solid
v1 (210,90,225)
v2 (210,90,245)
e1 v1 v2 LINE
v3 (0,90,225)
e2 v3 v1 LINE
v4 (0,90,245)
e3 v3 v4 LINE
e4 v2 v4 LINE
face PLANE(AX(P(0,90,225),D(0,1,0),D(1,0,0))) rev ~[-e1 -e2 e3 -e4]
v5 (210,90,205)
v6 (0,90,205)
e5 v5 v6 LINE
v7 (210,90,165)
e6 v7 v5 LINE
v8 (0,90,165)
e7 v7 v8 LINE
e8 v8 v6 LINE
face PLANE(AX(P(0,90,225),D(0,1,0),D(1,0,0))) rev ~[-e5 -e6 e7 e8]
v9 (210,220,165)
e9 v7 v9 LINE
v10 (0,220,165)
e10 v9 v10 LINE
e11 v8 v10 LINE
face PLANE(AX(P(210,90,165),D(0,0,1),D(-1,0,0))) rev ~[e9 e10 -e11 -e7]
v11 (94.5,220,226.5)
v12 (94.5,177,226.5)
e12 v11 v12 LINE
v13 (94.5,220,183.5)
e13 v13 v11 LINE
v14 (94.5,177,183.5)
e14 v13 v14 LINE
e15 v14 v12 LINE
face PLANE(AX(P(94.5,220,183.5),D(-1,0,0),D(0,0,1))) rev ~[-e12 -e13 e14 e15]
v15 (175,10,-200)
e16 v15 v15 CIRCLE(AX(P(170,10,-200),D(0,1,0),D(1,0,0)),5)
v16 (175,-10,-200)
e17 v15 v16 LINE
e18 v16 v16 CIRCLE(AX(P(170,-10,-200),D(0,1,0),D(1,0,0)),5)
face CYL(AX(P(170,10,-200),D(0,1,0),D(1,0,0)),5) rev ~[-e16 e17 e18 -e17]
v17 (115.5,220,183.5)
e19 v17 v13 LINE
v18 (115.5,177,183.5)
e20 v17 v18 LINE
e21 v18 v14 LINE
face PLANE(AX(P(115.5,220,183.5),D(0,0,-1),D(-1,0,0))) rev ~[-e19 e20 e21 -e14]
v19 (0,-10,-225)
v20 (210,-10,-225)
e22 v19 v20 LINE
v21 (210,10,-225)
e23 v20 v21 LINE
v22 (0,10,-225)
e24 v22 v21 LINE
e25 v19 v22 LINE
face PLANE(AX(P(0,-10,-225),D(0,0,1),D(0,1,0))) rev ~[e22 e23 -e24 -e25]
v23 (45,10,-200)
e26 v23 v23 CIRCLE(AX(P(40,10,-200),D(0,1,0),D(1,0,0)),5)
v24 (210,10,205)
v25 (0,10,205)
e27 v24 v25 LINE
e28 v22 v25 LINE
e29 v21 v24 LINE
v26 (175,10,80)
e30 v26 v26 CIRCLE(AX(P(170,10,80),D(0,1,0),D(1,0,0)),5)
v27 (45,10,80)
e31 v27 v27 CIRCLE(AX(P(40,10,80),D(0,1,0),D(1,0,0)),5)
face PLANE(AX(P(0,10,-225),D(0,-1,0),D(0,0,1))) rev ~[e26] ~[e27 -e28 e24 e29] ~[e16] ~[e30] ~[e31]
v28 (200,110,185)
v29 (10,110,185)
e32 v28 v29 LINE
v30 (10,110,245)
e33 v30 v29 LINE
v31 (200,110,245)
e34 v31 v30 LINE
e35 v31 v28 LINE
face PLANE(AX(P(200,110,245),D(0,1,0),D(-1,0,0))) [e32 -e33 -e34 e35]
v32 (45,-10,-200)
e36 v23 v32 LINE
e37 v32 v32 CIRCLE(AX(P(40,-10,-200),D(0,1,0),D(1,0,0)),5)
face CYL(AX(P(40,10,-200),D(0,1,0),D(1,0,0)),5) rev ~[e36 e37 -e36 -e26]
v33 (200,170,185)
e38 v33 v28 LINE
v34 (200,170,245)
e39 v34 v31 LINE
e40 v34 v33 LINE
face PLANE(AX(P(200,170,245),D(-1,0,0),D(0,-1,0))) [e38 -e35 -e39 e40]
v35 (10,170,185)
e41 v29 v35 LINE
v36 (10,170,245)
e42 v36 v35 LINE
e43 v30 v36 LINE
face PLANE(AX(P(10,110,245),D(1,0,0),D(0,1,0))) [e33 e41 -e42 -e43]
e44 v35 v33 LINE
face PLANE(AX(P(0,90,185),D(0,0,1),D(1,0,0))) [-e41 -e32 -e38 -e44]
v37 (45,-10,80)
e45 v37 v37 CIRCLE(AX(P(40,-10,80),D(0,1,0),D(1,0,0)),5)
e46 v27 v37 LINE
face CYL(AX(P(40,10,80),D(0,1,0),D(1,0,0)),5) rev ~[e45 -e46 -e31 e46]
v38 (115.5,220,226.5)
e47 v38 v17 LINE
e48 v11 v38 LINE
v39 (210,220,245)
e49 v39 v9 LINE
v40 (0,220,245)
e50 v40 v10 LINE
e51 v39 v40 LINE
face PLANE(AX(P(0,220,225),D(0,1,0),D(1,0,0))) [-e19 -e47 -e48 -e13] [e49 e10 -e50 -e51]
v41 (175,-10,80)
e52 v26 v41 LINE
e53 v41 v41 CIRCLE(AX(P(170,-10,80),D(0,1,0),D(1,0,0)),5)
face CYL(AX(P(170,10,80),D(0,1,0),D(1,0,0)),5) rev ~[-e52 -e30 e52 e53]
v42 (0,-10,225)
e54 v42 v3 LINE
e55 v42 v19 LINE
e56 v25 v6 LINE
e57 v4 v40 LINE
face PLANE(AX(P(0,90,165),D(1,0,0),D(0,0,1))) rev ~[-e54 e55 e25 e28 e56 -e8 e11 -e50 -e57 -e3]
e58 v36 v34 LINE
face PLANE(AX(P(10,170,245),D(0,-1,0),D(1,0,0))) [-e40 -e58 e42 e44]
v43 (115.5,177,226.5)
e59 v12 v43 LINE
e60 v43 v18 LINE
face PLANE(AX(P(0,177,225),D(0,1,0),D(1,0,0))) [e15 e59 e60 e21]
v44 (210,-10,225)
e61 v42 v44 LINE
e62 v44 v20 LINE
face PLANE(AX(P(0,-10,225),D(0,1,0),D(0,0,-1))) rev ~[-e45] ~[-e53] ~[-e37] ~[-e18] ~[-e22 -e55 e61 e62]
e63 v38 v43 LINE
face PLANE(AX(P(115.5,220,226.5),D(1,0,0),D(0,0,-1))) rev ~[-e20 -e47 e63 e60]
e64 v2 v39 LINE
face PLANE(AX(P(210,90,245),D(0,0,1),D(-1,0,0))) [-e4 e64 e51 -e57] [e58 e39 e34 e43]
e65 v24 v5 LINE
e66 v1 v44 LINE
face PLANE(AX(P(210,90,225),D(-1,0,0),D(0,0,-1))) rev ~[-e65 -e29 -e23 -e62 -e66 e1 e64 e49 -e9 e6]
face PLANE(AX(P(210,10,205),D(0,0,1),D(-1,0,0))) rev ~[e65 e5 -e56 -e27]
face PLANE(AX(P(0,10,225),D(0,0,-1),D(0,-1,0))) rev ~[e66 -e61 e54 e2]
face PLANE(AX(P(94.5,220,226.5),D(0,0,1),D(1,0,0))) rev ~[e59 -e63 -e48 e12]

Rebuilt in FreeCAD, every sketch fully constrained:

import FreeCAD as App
import Part
import Sketcher


def add_polygon(sketch, points):
    """Adds a closed chain of lines whose ends are joined by coincident constraints."""
    first, n = sketch.GeometryCount, len(points)
    for a, b in zip(points, points[1:] + points[:1]):
        sketch.addGeometry(Part.LineSegment(App.Vector(*a, 0), App.Vector(*b, 0)), False)
    for i in range(n):
        sketch.addConstraint(Sketcher.Constraint("Coincident", first + i, 2, first + (i + 1) % n, 1))

doc = App.newDocument("Part")
params = doc.addObject("Spreadsheet::Sheet", "Params")
for row, (alias, value) in enumerate([
    ("sketch1_width", "20 mm"),
    ("sketch1_height", "450 mm"),
    ("pad1_length", "210 mm"),
    ("sketch2_height", "20 mm"),
    ("sketch2_width", "210 mm"),
    ("pad2_length", "80 mm"),
    ("sketch3_width", "210 mm"),
    ("sketch3_height", "80 mm"),
    ("pad3_length", "130 mm"),
    ("sketch4_width", "190 mm"),
    ("sketch4_height", "60 mm"),
    ("pocket1_length", "60 mm"),
    ("sketch5_width", "21 mm"),
    ("sketch5_height", "43 mm"),
    ("pocket2_length", "43 mm"),
    ("sketch6_diameter", "10 mm"),
    ("pocket3_length", "43 mm"),
], start=1):
    params.set(f"A{row}", alias)
    params.set(f"B{row}", "=" + value)
    params.setAlias(f"B{row}", alias)

body = doc.addObject("PartDesign::Body", "Body")

sketch1 = body.newObject("Sketcher::SketchObject", "Sketch")
sketch1.AttachmentSupport = (doc.getObject("YZ_Plane"), [""])
sketch1.MapMode = "FlatFace"
add_polygon(sketch1, [(10, -225), (10, 225), (-10, 225), (-10, -225)])
sketch1.addConstraint(Sketcher.Constraint("Vertical", 0))
sketch1.addConstraint(Sketcher.Constraint("Horizontal", 1))
sketch1.addConstraint(Sketcher.Constraint("Vertical", 2))
sketch1.addConstraint(Sketcher.Constraint("Horizontal", 3))
sketch1.addConstraint(Sketcher.Constraint("Symmetric", 0, 2, 2, 2, -1, 1))
sketch1.addConstraint(Sketcher.Constraint("DistanceX", 1, 2, 1, 1, 20.0))
sketch1.addConstraint(Sketcher.Constraint("DistanceY", 0, 1, 0, 2, 450.0))
sketch1.setExpression("Constraints[9]", "Params.sketch1_width")
sketch1.setExpression("Constraints[10]", "Params.sketch1_height")
pad1 = body.newObject("PartDesign::Pad", "Pad")
pad1.Profile = sketch1
pad1.setExpression("Length", "Params.pad1_length")

sketch2 = body.newObject("Sketcher::SketchObject", "Sketch001")
sketch2.AttachmentSupport = (doc.getObject("XZ_Plane"), [""])
sketch2.MapMode = "FlatFace"
sketch2.AttachmentOffset = App.Placement(App.Vector(0, 0, -10), App.Rotation())
add_polygon(sketch2, [(0, 205), (0, 225), (210, 225), (210, 205)])
sketch2.addConstraint(Sketcher.Constraint("Vertical", 0))
sketch2.addConstraint(Sketcher.Constraint("Horizontal", 1))
sketch2.addConstraint(Sketcher.Constraint("Vertical", 2))
sketch2.addConstraint(Sketcher.Constraint("Horizontal", 3))
sketch2.addConstraint(Sketcher.Constraint("PointOnObject", 0, 2, -2))
sketch2.addConstraint(Sketcher.Constraint("DistanceY", 0, 1, 0, 2, 20.0))
sketch2.addConstraint(Sketcher.Constraint("DistanceX", 1, 1, 1, 2, 210.0))
sketch2.addConstraint(Sketcher.Constraint("DistanceY", -1, 1, 0, 2, 225.0))
sketch2.setExpression("Constraints[9]", "Params.sketch2_height")
sketch2.setExpression("Constraints[10]", "Params.sketch2_width")
pad2 = body.newObject("PartDesign::Pad", "Pad001")
pad2.Profile = sketch2
pad2.setExpression("Length", "Params.pad2_length")
pad2.Reversed = True

sketch3 = body.newObject("Sketcher::SketchObject", "Sketch002")
sketch3.AttachmentSupport = (doc.getObject("XZ_Plane"), [""])
sketch3.MapMode = "FlatFace"
sketch3.AttachmentOffset = App.Placement(App.Vector(0, 0, -90), App.Rotation())
add_polygon(sketch3, [(0, 165), (0, 245), (210, 245), (210, 165)])
sketch3.addConstraint(Sketcher.Constraint("Vertical", 0))
sketch3.addConstraint(Sketcher.Constraint("Horizontal", 1))
sketch3.addConstraint(Sketcher.Constraint("Vertical", 2))
sketch3.addConstraint(Sketcher.Constraint("Horizontal", 3))
sketch3.addConstraint(Sketcher.Constraint("PointOnObject", 0, 2, -2))
sketch3.addConstraint(Sketcher.Constraint("DistanceX", 1, 1, 1, 2, 210.0))
sketch3.addConstraint(Sketcher.Constraint("DistanceY", 0, 1, 0, 2, 80.0))
sketch3.addConstraint(Sketcher.Constraint("DistanceY", -1, 1, 0, 2, 245.0))
sketch3.setExpression("Constraints[9]", "Params.sketch3_width")
sketch3.setExpression("Constraints[10]", "Params.sketch3_height")
pad3 = body.newObject("PartDesign::Pad", "Pad002")
pad3.Profile = sketch3
pad3.setExpression("Length", "Params.pad3_length")
pad3.Reversed = True

sketch4 = body.newObject("Sketcher::SketchObject", "Sketch003")
sketch4.AttachmentSupport = (doc.getObject("XY_Plane"), [""])
sketch4.MapMode = "FlatFace"
sketch4.AttachmentOffset = App.Placement(App.Vector(0, 0, 245), App.Rotation())
add_polygon(sketch4, [(200, 170), (10, 170), (10, 110), (200, 110)])
sketch4.addConstraint(Sketcher.Constraint("Horizontal", 0))
sketch4.addConstraint(Sketcher.Constraint("Vertical", 1))
sketch4.addConstraint(Sketcher.Constraint("Horizontal", 2))
sketch4.addConstraint(Sketcher.Constraint("Vertical", 3))
sketch4.addConstraint(Sketcher.Constraint("DistanceX", 0, 2, 0, 1, 190.0))
sketch4.addConstraint(Sketcher.Constraint("DistanceY", 1, 2, 1, 1, 60.0))
sketch4.addConstraint(Sketcher.Constraint("DistanceX", -1, 1, 0, 2, 10.0))
sketch4.addConstraint(Sketcher.Constraint("DistanceY", -1, 1, 0, 2, 170.0))
sketch4.setExpression("Constraints[8]", "Params.sketch4_width")
sketch4.setExpression("Constraints[9]", "Params.sketch4_height")
pocket1 = body.newObject("PartDesign::Pocket", "Pocket")
pocket1.Profile = sketch4
pocket1.setExpression("Length", "Params.pocket1_length")

sketch5 = body.newObject("Sketcher::SketchObject", "Sketch004")
sketch5.AttachmentSupport = (doc.getObject("XZ_Plane"), [""])
sketch5.MapMode = "FlatFace"
sketch5.AttachmentOffset = App.Placement(App.Vector(0, 0, -220), App.Rotation())
add_polygon(sketch5, [(94, 184), (94, 226), (116, 226), (116, 184)])
sketch5.addConstraint(Sketcher.Constraint("Vertical", 0))
sketch5.addConstraint(Sketcher.Constraint("Horizontal", 1))
sketch5.addConstraint(Sketcher.Constraint("Vertical", 2))
sketch5.addConstraint(Sketcher.Constraint("Horizontal", 3))
sketch5.addConstraint(Sketcher.Constraint("DistanceX", 1, 1, 1, 2, 21.0))
sketch5.addConstraint(Sketcher.Constraint("DistanceY", 0, 1, 0, 2, 43.0))
sketch5.addConstraint(Sketcher.Constraint("DistanceX", -1, 1, 0, 2, 94.5))
sketch5.addConstraint(Sketcher.Constraint("DistanceY", -1, 1, 0, 2, 226.5))
sketch5.setExpression("Constraints[8]", "Params.sketch5_width")
sketch5.setExpression("Constraints[9]", "Params.sketch5_height")
pocket2 = body.newObject("PartDesign::Pocket", "Pocket001")
pocket2.Profile = sketch5
pocket2.setExpression("Length", "Params.pocket2_length")
pocket2.Reversed = True

sketch6 = body.newObject("Sketcher::SketchObject", "Sketch005")
sketch6.AttachmentSupport = (doc.getObject("XZ_Plane"), [""])
sketch6.MapMode = "FlatFace"
sketch6.AttachmentOffset = App.Placement(App.Vector(0, 0, -10), App.Rotation())
sketch6.addGeometry(Part.Circle(App.Vector(40, 80, 0), App.Vector(0, 0, 1), 5), False)
sketch6.addGeometry(Part.Circle(App.Vector(40, -200, 0), App.Vector(0, 0, 1), 5), False)
sketch6.addGeometry(Part.Circle(App.Vector(170, 80, 0), App.Vector(0, 0, 1), 5), False)
sketch6.addGeometry(Part.Circle(App.Vector(170, -200, 0), App.Vector(0, 0, 1), 5), False)
sketch6.addConstraint(Sketcher.Constraint("Equal", 0, 1))
sketch6.addConstraint(Sketcher.Constraint("Equal", 1, 2))
sketch6.addConstraint(Sketcher.Constraint("Equal", 2, 3))
sketch6.addConstraint(Sketcher.Constraint("Horizontal", 0, 3, 2, 3))
sketch6.addConstraint(Sketcher.Constraint("Horizontal", 1, 3, 3, 3))
sketch6.addConstraint(Sketcher.Constraint("Vertical", 0, 3, 1, 3))
sketch6.addConstraint(Sketcher.Constraint("Vertical", 2, 3, 3, 3))
sketch6.addConstraint(Sketcher.Constraint("Diameter", 0, 10.0))
sketch6.addConstraint(Sketcher.Constraint("DistanceX", -1, 1, 0, 3, 40.0))
sketch6.addConstraint(Sketcher.Constraint("DistanceY", -1, 1, 0, 3, 80.0))
sketch6.addConstraint(Sketcher.Constraint("DistanceY", 1, 3, -1, 1, 200.0))
sketch6.addConstraint(Sketcher.Constraint("DistanceX", -1, 1, 2, 3, 170.0))
sketch6.setExpression("Constraints[7]", "Params.sketch6_diameter")
pocket3 = body.newObject("PartDesign::Pocket", "Pocket002")
pocket3.Profile = sketch6
pocket3.setExpression("Length", "Params.pocket3_length")
pocket3.Reversed = True

doc.recompute()
